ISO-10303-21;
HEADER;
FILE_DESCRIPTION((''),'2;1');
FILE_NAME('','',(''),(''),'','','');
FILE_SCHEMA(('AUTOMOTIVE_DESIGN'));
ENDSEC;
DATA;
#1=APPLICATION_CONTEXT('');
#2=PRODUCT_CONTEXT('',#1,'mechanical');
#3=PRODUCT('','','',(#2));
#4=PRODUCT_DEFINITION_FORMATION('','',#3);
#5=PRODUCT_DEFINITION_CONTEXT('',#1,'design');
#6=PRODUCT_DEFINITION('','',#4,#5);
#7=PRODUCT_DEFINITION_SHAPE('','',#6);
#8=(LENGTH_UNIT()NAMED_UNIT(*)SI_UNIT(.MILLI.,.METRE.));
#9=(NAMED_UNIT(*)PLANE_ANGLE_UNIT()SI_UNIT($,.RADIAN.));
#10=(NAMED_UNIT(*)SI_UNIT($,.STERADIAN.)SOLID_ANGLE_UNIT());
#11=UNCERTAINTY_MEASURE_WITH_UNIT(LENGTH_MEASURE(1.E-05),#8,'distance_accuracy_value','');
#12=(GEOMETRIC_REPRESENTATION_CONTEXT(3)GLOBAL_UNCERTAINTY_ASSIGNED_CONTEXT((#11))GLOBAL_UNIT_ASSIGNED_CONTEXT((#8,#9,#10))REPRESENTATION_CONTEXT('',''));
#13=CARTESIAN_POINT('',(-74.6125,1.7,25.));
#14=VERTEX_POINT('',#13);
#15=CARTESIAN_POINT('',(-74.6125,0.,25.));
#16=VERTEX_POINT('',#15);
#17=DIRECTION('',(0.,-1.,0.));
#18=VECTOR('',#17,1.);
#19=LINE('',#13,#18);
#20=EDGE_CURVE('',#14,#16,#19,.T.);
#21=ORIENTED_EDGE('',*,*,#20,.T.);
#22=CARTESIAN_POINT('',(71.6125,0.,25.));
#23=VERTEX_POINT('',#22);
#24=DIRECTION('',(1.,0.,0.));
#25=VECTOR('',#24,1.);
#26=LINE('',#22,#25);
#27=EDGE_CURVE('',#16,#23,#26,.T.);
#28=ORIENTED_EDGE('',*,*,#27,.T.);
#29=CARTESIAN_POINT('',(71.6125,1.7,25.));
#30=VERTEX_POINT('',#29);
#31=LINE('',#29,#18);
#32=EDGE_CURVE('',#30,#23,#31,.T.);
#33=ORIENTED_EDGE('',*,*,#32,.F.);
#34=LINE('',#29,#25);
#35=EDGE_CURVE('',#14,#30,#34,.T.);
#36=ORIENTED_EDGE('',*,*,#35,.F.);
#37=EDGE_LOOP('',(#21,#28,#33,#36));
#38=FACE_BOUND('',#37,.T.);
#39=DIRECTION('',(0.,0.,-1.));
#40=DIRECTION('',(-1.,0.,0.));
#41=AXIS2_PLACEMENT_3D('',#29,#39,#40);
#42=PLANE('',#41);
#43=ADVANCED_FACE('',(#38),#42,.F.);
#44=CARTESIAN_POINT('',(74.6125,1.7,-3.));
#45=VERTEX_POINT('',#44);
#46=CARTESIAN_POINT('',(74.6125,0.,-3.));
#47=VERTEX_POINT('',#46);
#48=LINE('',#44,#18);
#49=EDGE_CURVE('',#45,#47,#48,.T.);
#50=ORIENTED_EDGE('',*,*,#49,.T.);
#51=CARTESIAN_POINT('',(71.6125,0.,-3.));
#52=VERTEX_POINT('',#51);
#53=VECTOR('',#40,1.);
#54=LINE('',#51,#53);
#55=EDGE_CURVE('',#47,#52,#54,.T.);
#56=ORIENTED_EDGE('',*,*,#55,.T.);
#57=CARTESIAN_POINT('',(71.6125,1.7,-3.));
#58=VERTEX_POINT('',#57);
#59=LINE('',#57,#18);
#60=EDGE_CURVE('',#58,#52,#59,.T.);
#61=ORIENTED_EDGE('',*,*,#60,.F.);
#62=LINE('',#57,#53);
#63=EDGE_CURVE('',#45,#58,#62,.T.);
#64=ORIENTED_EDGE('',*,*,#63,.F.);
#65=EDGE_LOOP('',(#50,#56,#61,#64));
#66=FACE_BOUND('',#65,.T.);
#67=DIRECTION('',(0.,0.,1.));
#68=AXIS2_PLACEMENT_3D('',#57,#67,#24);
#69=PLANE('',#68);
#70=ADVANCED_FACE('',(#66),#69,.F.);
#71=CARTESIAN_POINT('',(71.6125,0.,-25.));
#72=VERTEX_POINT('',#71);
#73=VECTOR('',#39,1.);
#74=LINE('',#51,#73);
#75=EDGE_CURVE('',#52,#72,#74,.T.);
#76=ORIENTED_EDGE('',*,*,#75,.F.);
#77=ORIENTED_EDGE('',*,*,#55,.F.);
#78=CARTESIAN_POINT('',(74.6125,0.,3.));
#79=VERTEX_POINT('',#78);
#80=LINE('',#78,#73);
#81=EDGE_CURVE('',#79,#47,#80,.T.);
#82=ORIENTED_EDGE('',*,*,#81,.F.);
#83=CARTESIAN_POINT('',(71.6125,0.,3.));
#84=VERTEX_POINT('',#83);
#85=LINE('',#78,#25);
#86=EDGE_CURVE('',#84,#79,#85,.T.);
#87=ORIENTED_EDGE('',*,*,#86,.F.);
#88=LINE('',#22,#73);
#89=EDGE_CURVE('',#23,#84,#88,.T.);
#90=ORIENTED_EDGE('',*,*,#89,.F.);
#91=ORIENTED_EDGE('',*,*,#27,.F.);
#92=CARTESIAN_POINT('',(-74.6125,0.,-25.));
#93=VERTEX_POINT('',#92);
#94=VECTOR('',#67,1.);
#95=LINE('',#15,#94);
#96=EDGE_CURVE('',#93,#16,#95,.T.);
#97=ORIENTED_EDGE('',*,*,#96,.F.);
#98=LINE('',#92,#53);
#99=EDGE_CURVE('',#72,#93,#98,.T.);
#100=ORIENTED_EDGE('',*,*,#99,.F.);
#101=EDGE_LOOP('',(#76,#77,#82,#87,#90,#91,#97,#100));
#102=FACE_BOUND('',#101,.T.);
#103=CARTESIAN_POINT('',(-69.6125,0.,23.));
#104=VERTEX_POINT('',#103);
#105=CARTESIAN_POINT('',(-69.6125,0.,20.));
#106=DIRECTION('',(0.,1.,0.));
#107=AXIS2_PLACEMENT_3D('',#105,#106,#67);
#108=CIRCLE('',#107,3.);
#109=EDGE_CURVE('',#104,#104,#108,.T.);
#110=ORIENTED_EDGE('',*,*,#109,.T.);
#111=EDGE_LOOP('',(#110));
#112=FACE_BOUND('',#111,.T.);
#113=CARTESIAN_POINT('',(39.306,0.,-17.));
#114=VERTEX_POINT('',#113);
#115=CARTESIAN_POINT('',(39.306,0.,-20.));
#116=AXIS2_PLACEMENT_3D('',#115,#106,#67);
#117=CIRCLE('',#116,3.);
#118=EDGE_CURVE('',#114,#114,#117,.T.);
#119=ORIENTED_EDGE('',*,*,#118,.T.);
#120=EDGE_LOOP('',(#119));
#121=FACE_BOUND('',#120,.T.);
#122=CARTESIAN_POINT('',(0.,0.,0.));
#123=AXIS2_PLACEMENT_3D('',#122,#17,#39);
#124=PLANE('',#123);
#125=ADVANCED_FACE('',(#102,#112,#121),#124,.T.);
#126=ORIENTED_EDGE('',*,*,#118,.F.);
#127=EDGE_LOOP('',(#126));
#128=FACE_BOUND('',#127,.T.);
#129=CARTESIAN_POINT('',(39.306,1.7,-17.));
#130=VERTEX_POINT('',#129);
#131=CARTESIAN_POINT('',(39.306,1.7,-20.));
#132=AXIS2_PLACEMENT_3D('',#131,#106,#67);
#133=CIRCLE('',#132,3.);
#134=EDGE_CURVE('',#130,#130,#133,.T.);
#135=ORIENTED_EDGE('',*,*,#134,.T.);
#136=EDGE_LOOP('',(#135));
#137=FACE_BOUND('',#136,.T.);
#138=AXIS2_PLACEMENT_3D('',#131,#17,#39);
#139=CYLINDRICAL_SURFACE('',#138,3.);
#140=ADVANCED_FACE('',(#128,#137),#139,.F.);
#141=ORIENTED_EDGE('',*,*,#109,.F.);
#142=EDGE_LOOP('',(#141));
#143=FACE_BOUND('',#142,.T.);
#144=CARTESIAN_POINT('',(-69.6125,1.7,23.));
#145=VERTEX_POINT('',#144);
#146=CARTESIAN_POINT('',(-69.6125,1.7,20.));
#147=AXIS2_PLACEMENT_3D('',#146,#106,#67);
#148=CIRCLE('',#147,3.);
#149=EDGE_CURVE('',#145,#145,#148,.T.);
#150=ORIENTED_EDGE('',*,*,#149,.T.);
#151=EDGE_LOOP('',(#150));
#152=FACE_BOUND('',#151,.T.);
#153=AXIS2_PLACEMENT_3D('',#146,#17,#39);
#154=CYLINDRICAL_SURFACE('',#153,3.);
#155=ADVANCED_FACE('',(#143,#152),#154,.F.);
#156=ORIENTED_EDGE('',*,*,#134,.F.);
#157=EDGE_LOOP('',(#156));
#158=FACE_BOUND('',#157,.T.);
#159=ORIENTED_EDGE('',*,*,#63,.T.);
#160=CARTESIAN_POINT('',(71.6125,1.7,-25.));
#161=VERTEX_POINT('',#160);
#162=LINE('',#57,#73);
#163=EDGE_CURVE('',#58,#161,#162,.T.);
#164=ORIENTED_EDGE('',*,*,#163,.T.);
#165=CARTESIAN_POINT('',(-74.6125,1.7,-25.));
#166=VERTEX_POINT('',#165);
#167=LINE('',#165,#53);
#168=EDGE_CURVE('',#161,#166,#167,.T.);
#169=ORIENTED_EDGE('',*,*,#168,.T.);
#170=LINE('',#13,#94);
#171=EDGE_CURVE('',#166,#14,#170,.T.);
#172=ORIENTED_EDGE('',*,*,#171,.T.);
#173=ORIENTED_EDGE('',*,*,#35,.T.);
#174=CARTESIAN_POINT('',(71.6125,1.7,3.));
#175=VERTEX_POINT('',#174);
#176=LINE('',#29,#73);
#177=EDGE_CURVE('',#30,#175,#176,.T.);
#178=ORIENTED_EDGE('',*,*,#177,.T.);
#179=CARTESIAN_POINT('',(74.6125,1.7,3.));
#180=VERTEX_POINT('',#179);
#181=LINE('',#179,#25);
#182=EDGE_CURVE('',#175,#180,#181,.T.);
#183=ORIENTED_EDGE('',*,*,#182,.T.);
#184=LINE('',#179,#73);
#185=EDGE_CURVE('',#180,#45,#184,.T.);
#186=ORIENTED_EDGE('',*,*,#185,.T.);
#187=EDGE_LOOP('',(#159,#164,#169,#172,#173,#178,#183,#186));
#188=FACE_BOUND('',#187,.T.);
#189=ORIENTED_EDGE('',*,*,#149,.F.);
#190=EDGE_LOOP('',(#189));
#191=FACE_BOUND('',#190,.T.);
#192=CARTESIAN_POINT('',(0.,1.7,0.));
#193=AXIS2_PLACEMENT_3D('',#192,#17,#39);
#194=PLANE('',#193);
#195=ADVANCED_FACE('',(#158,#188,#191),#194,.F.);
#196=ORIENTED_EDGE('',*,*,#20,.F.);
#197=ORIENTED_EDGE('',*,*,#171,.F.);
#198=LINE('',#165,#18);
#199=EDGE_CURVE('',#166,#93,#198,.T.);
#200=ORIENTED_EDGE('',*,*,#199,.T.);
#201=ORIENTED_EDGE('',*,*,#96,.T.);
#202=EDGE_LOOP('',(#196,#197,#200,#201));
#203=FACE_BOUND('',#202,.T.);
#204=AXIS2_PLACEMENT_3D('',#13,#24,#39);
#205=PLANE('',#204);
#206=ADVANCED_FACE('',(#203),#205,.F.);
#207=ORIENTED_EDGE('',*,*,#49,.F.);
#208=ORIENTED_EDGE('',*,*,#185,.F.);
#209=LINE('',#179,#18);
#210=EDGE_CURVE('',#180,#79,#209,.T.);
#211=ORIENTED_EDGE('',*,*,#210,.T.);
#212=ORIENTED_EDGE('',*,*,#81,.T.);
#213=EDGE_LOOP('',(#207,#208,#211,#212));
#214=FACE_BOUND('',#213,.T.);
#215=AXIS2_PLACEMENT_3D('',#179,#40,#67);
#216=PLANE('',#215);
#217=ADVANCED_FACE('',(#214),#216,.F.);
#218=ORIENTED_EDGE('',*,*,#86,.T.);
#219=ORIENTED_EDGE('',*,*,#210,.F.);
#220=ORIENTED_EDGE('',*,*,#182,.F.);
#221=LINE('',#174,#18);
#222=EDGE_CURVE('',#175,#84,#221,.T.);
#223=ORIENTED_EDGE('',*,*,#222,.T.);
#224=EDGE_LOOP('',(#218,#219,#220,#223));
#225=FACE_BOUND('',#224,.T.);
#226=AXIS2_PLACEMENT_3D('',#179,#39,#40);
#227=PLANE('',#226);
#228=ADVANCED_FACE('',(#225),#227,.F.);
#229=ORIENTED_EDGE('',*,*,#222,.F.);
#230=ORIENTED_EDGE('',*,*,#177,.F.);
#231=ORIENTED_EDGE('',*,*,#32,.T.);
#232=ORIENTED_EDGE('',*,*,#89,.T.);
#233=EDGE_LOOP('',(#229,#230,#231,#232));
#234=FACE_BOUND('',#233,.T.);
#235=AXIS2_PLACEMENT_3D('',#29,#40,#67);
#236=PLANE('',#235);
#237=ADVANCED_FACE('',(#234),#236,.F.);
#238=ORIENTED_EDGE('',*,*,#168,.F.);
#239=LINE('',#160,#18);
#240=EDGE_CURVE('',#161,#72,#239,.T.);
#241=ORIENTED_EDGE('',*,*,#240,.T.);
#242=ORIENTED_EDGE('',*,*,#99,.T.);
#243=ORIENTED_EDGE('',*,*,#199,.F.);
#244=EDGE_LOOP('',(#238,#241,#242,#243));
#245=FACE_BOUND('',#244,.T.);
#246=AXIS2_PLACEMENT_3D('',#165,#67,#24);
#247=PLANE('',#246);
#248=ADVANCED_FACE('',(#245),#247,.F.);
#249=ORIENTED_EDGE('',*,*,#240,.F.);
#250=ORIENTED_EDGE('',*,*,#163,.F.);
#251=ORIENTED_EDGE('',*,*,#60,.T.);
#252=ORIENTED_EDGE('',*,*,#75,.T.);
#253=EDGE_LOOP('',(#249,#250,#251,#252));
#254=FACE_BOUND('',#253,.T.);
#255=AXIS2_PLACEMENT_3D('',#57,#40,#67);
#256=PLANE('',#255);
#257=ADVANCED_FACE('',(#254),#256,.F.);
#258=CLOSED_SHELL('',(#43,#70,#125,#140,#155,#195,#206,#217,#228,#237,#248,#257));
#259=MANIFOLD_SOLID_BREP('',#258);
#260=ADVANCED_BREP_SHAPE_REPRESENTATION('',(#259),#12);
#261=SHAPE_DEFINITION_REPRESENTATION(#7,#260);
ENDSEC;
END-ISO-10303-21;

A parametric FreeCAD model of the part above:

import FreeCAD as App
import Part
import Sketcher

V = App.Vector
Q = App.Units.Quantity

doc = App.newDocument("Part")
params = doc.addObject("Spreadsheet::Sheet", "Params")
for row, (alias, value) in enumerate([
    ("sketch1_diameter", "6 mm"),
    ("sketch1_width", "3 mm"),
    ("sketch1_height", "6 mm"),
    ("sketch1_height2", "22 mm"),
    ("pad1_length", "1.7 mm"),
], start=1):
    params.set(f"A{row}", alias)
    params.set(f"B{row}", "=" + value)
    params.setAlias(f"B{row}", alias)

body = doc.addObject("PartDesign::Body", "Body")

sketch1 = body.newObject("Sketcher::SketchObject", "Sketch")
sketch1.AttachmentSupport = (doc.getObject("XZ_Plane"), [""])
sketch1.MapMode = "FlatFace"
sketch1.addGeometry([
    Part.LineSegment(V(71.6, 3, 0), V(74.6, 3, 0)),
    Part.LineSegment(V(74.6, 3, 0), V(74.6, -3, 0)),
    Part.LineSegment(V(74.6, -3, 0), V(71.6, -3, 0)),
    Part.LineSegment(V(71.6, -3, 0), V(71.6, -25, 0)),
    Part.LineSegment(V(71.6, -25, 0), V(-74.6, -25, 0)),
    Part.LineSegment(V(-74.6, -25, 0), V(-74.6, 25, 0)),
    Part.LineSegment(V(-74.6, 25, 0), V(71.6, 25, 0)),
    Part.LineSegment(V(71.6, 25, 0), V(71.6, 3, 0)),
    Part.Circle(V(-69.6, 20, 0), V(0, 0, 1), 3),
    Part.Circle(V(39.3, -20, 0), V(0, 0, 1), 3),
], False)
sketch1.addConstraint([
    Sketcher.Constraint("Coincident", 0, 2, 1, 1),
    Sketcher.Constraint("Coincident", 1, 2, 2, 1),
    Sketcher.Constraint("Coincident", 2, 2, 3, 1),
    Sketcher.Constraint("Coincident", 3, 2, 4, 1),
    Sketcher.Constraint("Coincident", 4, 2, 5, 1),
    Sketcher.Constraint("Coincident", 5, 2, 6, 1),
    Sketcher.Constraint("Coincident", 6, 2, 7, 1),
    Sketcher.Constraint("Coincident", 7, 2, 0, 1),
    Sketcher.Constraint("Horizontal", 0),
    Sketcher.Constraint("Vertical", 1),
    Sketcher.Constraint("Horizontal", 2),
    Sketcher.Constraint("Vertical", 3),
    Sketcher.Constraint("Horizontal", 4),
    Sketcher.Constraint("Vertical", 5),
    Sketcher.Constraint("Horizontal", 6),
    Sketcher.Constraint("Vertical", 7),
    Sketcher.Constraint("Equal", 8, 9),
    Sketcher.Constraint("Symmetric", 3, 2, 6, 2, -1),
    Sketcher.Constraint("Equal", 3, 7),
    Sketcher.Constraint("Diameter", 8, Q("6 mm")),
    Sketcher.Constraint("DistanceX", 0, 1, 0, 2, Q("3 mm")),
    Sketcher.Constraint("DistanceY", 1, 2, 1, 1, Q("6 mm")),
    Sketcher.Constraint("DistanceY", 3, 2, 3, 1, Q("22 mm")),
    Sketcher.Constraint("DistanceY", -1, 1, 8, 3, Q("20 mm")),
    Sketcher.Constraint("DistanceY", 9, 3, -1, 1, Q("20 mm")),
    Sketcher.Constraint("DistanceX", 4, 2, 8, 3, Q("5 mm")),
    Sketcher.Constraint("DistanceX", 4, 2, 4, 1, Q("146.225 mm")),
    Sketcher.Constraint("DistanceX", -1, 1, 9, 3, Q("39.306 mm")),
    Sketcher.Constraint("DistanceX", 8, 3, -1, 1, Q("69.6125 mm")),
])
sketch1.setExpression("Constraints[19]", "Params.sketch1_diameter")
sketch1.setExpression("Constraints[20]", "Params.sketch1_width")
sketch1.setExpression("Constraints[21]", "Params.sketch1_height")
sketch1.setExpression("Constraints[22]", "Params.sketch1_height2")
pad1 = body.newObject("PartDesign::Pad", "Pad")
pad1.Profile = sketch1
pad1.setExpression("Length", "Params.pad1_length")
pad1.Reversed = True

doc.recompute()
